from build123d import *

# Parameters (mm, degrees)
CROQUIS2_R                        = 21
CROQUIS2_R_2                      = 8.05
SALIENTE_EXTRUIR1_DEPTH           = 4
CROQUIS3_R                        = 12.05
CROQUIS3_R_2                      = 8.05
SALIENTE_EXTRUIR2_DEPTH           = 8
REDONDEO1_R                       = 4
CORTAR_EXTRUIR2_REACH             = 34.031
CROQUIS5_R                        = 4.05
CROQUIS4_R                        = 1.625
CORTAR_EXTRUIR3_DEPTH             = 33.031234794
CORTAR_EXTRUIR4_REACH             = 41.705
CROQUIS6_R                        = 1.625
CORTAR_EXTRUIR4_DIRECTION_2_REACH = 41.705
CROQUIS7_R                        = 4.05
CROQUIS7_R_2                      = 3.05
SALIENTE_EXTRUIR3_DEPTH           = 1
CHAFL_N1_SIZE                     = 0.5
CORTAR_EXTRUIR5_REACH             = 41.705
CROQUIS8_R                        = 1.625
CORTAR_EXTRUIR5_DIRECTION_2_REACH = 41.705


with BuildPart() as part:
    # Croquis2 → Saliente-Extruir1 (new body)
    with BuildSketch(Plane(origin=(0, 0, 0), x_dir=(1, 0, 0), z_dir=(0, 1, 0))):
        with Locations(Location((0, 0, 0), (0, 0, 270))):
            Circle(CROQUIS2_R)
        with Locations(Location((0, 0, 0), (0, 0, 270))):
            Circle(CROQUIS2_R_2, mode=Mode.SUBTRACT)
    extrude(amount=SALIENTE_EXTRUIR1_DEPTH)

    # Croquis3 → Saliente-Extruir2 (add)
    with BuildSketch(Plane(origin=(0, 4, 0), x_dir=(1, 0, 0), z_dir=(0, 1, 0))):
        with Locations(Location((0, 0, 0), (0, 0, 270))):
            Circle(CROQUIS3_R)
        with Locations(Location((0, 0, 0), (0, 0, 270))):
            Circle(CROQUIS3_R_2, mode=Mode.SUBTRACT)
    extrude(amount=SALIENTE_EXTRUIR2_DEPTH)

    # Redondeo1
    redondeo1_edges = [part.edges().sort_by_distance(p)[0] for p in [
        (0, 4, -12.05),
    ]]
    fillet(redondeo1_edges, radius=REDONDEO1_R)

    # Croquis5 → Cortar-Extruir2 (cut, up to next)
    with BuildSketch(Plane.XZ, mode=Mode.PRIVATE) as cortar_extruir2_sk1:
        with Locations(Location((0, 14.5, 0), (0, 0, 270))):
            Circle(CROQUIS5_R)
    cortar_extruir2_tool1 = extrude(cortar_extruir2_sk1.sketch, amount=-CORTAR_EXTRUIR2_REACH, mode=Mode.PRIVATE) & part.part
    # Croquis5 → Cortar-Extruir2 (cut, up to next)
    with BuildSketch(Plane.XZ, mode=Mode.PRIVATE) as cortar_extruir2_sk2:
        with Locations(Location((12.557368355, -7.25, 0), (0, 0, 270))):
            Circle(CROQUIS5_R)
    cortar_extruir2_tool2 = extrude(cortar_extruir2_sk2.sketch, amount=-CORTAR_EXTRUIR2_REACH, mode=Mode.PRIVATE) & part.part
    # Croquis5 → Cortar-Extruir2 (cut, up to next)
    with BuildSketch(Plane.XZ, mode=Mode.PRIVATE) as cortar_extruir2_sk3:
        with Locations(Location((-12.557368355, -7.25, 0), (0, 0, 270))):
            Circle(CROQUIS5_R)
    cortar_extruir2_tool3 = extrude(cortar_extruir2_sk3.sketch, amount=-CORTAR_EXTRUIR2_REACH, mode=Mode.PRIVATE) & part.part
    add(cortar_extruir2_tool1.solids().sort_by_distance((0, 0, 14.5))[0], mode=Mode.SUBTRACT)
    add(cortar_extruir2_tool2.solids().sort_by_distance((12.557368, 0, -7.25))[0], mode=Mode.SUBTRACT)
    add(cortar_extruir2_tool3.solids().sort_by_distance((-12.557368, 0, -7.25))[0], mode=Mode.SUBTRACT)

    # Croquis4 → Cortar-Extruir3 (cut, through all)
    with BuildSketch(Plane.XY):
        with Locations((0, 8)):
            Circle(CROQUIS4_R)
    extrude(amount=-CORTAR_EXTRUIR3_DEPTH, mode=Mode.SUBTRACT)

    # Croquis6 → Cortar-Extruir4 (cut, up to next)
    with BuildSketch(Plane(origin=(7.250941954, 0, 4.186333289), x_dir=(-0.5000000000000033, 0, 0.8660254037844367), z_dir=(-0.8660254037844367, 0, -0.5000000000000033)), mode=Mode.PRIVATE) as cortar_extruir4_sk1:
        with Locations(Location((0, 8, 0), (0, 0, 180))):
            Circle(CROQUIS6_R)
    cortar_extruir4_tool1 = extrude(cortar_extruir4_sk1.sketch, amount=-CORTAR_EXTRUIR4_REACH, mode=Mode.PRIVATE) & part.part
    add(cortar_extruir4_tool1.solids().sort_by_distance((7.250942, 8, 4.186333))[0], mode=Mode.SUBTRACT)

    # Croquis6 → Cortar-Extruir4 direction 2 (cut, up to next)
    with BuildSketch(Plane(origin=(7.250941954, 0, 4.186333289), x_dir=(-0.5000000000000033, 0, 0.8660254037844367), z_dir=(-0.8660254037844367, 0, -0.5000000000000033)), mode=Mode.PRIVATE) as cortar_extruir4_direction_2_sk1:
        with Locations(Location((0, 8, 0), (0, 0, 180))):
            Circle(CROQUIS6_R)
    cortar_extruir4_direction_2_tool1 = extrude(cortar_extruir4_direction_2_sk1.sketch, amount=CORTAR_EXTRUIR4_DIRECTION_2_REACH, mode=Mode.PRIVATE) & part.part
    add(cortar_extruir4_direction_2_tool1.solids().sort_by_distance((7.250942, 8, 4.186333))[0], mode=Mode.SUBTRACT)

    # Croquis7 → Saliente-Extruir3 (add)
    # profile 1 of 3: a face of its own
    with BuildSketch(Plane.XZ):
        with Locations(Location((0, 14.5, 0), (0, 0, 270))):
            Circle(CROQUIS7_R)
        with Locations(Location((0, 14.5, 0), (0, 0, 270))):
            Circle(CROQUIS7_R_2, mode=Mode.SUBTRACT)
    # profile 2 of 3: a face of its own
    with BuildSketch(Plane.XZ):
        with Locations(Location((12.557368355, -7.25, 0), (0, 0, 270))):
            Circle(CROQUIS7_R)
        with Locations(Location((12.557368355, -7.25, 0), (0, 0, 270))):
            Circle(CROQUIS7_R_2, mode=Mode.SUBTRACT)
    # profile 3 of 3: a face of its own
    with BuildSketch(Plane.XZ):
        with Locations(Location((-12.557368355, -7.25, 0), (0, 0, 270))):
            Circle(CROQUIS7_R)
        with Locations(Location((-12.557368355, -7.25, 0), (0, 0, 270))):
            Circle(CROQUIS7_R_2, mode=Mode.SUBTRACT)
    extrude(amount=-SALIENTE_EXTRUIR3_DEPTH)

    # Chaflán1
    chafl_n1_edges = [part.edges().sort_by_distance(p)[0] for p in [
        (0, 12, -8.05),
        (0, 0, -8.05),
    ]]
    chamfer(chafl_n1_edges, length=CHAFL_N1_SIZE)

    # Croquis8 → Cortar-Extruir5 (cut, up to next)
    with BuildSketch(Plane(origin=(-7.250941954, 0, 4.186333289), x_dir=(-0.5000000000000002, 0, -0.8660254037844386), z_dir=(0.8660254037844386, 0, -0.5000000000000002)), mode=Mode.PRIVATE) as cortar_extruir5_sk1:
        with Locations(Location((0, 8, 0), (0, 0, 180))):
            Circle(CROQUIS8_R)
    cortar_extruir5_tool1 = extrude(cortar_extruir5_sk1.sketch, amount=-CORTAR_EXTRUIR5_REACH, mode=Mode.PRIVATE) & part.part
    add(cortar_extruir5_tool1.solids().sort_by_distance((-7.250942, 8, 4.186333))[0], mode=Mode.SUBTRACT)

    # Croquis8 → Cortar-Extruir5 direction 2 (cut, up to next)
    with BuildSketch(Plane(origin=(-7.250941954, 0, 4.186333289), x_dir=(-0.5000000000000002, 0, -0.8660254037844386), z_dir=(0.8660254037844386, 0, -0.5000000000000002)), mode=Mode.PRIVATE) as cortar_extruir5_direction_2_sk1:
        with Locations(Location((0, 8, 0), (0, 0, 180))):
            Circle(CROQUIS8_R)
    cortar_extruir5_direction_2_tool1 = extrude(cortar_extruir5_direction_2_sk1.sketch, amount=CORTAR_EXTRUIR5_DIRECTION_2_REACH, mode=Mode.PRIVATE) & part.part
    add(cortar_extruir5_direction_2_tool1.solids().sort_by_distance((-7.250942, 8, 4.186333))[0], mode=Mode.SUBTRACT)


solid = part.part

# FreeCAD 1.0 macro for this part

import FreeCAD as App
import Part
import Sketcher

V = App.Vector
Q = App.Units.Quantity


def edges_at(feature, points):
    """Names of the edges that pass closest to the given points."""
    edges = feature.Shape.Edges
    near = lambda p: min(range(len(edges)), key=lambda i: edges[i].distToShape(Part.Vertex(*p))[0])
    return sorted({f"Edge{near(p) + 1}" for p in points})

doc = App.newDocument("Part")
body = doc.addObject("PartDesign::Body", "Body")

sketch1 = body.newObject("Sketcher::SketchObject", "Sketch")
sketch1.AttachmentSupport = (doc.getObject("XZ_Plane"), [""])
sketch1.MapMode = "FlatFace"
sketch1.addGeometry([
    Part.Circle(V(0, 0, 0), V(0, 0, 1), 21),
    Part.Circle(V(0, 0, 0), V(0, 0, 1), 8),
], False)
sketch1.addConstraint([
    Sketcher.Constraint("Coincident", 0, 3, -1, 1),
    Sketcher.Constraint("Coincident", 1, 3, -1, 1),
    Sketcher.Constraint("Diameter", 0, Q("42 mm")),
    Sketcher.Constraint("Diameter", 1, Q("16.1 mm")),
])
pad1 = body.newObject("PartDesign::Pad", "Pad")
pad1.Profile = sketch1
pad1.Length = 4
pad1.Reversed = True

sketch2 = body.newObject("Sketcher::SketchObject", "Sketch001")
sketch2.AttachmentSupport = (doc.getObject("XZ_Plane"), [""])
sketch2.MapMode = "FlatFace"
sketch2.AttachmentOffset = App.Placement(V(0, 0, -4), App.Rotation())
sketch2.addGeometry([
    Part.Circle(V(0, 0, 0), V(0, 0, 1), 12),
    Part.Circle(V(0, 0, 0), V(0, 0, 1), 8),
], False)
sketch2.addConstraint([
    Sketcher.Constraint("Coincident", 0, 3, -1, 1),
    Sketcher.Constraint("Coincident", 1, 3, -1, 1),
    Sketcher.Constraint("Diameter", 0, Q("24.1 mm")),
    Sketcher.Constraint("Diameter", 1, Q("16.1 mm")),
])
pad2 = body.newObject("PartDesign::Pad", "Pad001")
pad2.Profile = sketch2
pad2.Length = 8
pad2.Reversed = True
doc.recompute()

fillet = body.newObject("PartDesign::Fillet", "Fillet")
fillet.Base = (pad2, edges_at(pad2, [(0, 4, -12.05)]))
fillet.Radius = 4

sketch3 = body.newObject("Sketcher::SketchObject", "Sketch002")
sketch3.AttachmentSupport = (doc.getObject("XZ_Plane"), [""])
sketch3.MapMode = "FlatFace"
sketch3.addGeometry(Part.Circle(V(0, 14.5, 0), V(0, 0, 1), 4), False)
sketch3.addConstraint([
    Sketcher.Constraint("PointOnObject", 0, 3, -2),
    Sketcher.Constraint("Diameter", 0, Q("8.1 mm")),
    Sketcher.Constraint("DistanceY", -1, 1, 0, 3, Q("14.5 mm")),
])
pocket1 = body.newObject("PartDesign::Pocket", "Pocket")
pocket1.Profile = sketch3
pocket1.Type = "UpToFirst"

sketch4 = body.newObject("Sketcher::SketchObject", "Sketch003")
sketch4.AttachmentSupport = (doc.getObject("XZ_Plane"), [""])
sketch4.MapMode = "FlatFace"
sketch4.addGeometry(Part.Circle(V(12.6, -7.2, 0), V(0, 0, 1), 4), False)
sketch4.addConstraint([
    Sketcher.Constraint("Diameter", 0, Q("8.1 mm")),
    Sketcher.Constraint("DistanceY", 0, 3, -1, 1, Q("7.25 mm")),
    Sketcher.Constraint("DistanceX", -1, 1, 0, 3, Q("12.557368 mm")),
])
pocket2 = body.newObject("PartDesign::Pocket", "Pocket001")
pocket2.Profile = sketch4
pocket2.Type = "UpToFirst"

sketch5 = body.newObject("Sketcher::SketchObject", "Sketch004")
sketch5.AttachmentSupport = (doc.getObject("XZ_Plane"), [""])
sketch5.MapMode = "FlatFace"
sketch5.addGeometry(Part.Circle(V(-12.6, -7.2, 0), V(0, 0, 1), 4), False)
sketch5.addConstraint([
    Sketcher.Constraint("Diameter", 0, Q("8.1 mm")),
    Sketcher.Constraint("DistanceY", 0, 3, -1, 1, Q("7.25 mm")),
    Sketcher.Constraint("DistanceX", 0, 3, -1, 1, Q("12.557368 mm")),
])
pocket3 = body.newObject("PartDesign::Pocket", "Pocket002")
pocket3.Profile = sketch5
pocket3.Type = "UpToFirst"

sketch6 = body.newObject("Sketcher::SketchObject", "Sketch005")
sketch6.AttachmentSupport = (doc.getObject("XY_Plane"), [""])
sketch6.MapMode = "FlatFace"
sketch6.addGeometry(Part.Circle(V(0, 8, 0), V(0, 0, 1), 1.6), False)
sketch6.addConstraint([
    Sketcher.Constraint("PointOnObject", 0, 3, -2),
    Sketcher.Constraint("Diameter", 0, Q("3.25 mm")),
    Sketcher.Constraint("DistanceY", -1, 1, 0, 3, Q("8 mm")),
])
pocket4 = body.newObject("PartDesign::Pocket", "Pocket003")
pocket4.Profile = sketch6
pocket4.Type = "ThroughAll"

sketch7 = body.newObject("Sketcher::SketchObject", "Sketch006")
sketch7.Placement = App.Placement(V(7.250942, 0, 4.186333), App.Rotation(V(-0.5, 0, 0.866025404), V(0, 1, 0), V(-0.866025404, 0, -0.5), "ZXY"))
sketch7.addGeometry(Part.Circle(V(0, 8, 0), V(0, 0, 1), 1.6), False)
sketch7.addConstraint([
    Sketcher.Constraint("PointOnObject", 0, 3, -2),
    Sketcher.Constraint("Diameter", 0, Q("3.25 mm")),
    Sketcher.Constraint("DistanceY", -1, 1, 0, 3, Q("8 mm")),
])
pocket5 = body.newObject("PartDesign::Pocket", "Pocket004")
pocket5.Profile = sketch7
pocket5.Type = "UpToFirst"

sketch8 = body.newObject("Sketcher::SketchObject", "Sketch007")
sketch8.Placement = App.Placement(V(7.250942, 0, 4.186333), App.Rotation(V(-0.5, 0, 0.866025404), V(0, 1, 0), V(-0.866025404, 0, -0.5), "ZXY"))
sketch8.addGeometry(Part.Circle(V(0, 8, 0), V(0, 0, 1), 1.6), False)
sketch8.addConstraint([
    Sketcher.Constraint("PointOnObject", 0, 3, -2),
    Sketcher.Constraint("Diameter", 0, Q("3.25 mm")),
    Sketcher.Constraint("DistanceY", -1, 1, 0, 3, Q("8 mm")),
])
pocket6 = body.newObject("PartDesign::Pocket", "Pocket005")
pocket6.Profile = sketch8
pocket6.Length = 0.488386
pocket6.Reversed = True

sketch9 = body.newObject("Sketcher::SketchObject", "Sketch008")
sketch9.AttachmentSupport = (doc.getObject("XZ_Plane"), [""])
sketch9.MapMode = "FlatFace"
sketch9.addGeometry([
    Part.Circle(V(0, 14.5, 0), V(0, 0, 1), 4),
    Part.Circle(V(0, 14.5, 0), V(0, 0, 1), 3),
    Part.Circle(V(12.6, -7.2, 0), V(0, 0, 1), 4),
    Part.Circle(V(12.6, -7.2, 0), V(0, 0, 1), 3),
    Part.Circle(V(-12.6, -7.2, 0), V(0, 0, 1), 4),
    Part.Circle(V(-12.6, -7.2, 0), V(0, 0, 1), 3),
], False)
sketch9.addConstraint([
    Sketcher.Constraint("Coincident", 1, 3, 0, 3),
    Sketcher.Constraint("Coincident", 3, 3, 2, 3),
    Sketcher.Constraint("Coincident", 5, 3, 4, 3),
    Sketcher.Constraint("Equal", 0, 2),
    Sketcher.Constraint("Equal", 1, 3),
    Sketcher.Constraint("Equal", 2, 4),
    Sketcher.Constraint("Equal", 3, 5),
    Sketcher.Constraint("Symmetric", 2, 3, 4, 3, -2),
    Sketcher.Constraint("PointOnObject", 0, 3, -2),
    Sketcher.Constraint("Diameter", 0, Q("8.1 mm")),
    Sketcher.Constraint("Diameter", 1, Q("6.1 mm")),
    Sketcher.Constraint("DistanceY", -1, 1, 0, 3, Q("14.5 mm")),
    Sketcher.Constraint("DistanceY", 2, 3, -1, 1, Q("7.25 mm")),
    Sketcher.Constraint("DistanceX", -1, 1, 2, 3, Q("12.557368 mm")),
])
pad3 = body.newObject("PartDesign::Pad", "Pad002")
pad3.Profile = sketch9
pad3.Length = 1
pad3.Reversed = True
doc.recompute()

chamfer = body.newObject("PartDesign::Chamfer", "Chamfer")
chamfer.Base = (pad3, edges_at(pad3, [(0, 12, -8.05), (0, 0, -8.05)]))
chamfer.Size = 0.5

sketch10 = body.newObject("Sketcher::SketchObject", "Sketch009")
sketch10.Placement = App.Placement(V(-7.250942, 0, 4.186333), App.Rotation(V(-0.5, 0, -0.866025404), V(0, 1, 0), V(0.866025404, 0, -0.5), "ZXY"))
sketch10.addGeometry(Part.Circle(V(0, 8, 0), V(0, 0, 1), 1.6), False)
sketch10.addConstraint([
    Sketcher.Constraint("PointOnObject", 0, 3, -2),
    Sketcher.Constraint("Diameter", 0, Q("3.25 mm")),
    Sketcher.Constraint("DistanceY", -1, 1, 0, 3, Q("8 mm")),
])
pocket7 = body.newObject("PartDesign::Pocket", "Pocket006")
pocket7.Profile = sketch10
pocket7.Type = "UpToFirst"

sketch11 = body.newObject("Sketcher::SketchObject", "Sketch010")
sketch11.Placement = App.Placement(V(-7.250942, 0, 4.186333), App.Rotation(V(-0.5, 0, -0.866025404), V(0, 1, 0), V(0.866025404, 0, -0.5), "ZXY"))
sketch11.addGeometry(Part.Circle(V(0, 8, 0), V(0, 0, 1), 1.6), False)
sketch11.addConstraint([
    Sketcher.Constraint("PointOnObject", 0, 3, -2),
    Sketcher.Constraint("Diameter", 0, Q("3.25 mm")),
    Sketcher.Constraint("DistanceY", -1, 1, 0, 3, Q("8 mm")),
])
pocket8 = body.newObject("PartDesign::Pocket", "Pocket007")
pocket8.Profile = sketch11
pocket8.Type = "UpToFirst"
pocket8.Reversed = True

doc.recompute()
